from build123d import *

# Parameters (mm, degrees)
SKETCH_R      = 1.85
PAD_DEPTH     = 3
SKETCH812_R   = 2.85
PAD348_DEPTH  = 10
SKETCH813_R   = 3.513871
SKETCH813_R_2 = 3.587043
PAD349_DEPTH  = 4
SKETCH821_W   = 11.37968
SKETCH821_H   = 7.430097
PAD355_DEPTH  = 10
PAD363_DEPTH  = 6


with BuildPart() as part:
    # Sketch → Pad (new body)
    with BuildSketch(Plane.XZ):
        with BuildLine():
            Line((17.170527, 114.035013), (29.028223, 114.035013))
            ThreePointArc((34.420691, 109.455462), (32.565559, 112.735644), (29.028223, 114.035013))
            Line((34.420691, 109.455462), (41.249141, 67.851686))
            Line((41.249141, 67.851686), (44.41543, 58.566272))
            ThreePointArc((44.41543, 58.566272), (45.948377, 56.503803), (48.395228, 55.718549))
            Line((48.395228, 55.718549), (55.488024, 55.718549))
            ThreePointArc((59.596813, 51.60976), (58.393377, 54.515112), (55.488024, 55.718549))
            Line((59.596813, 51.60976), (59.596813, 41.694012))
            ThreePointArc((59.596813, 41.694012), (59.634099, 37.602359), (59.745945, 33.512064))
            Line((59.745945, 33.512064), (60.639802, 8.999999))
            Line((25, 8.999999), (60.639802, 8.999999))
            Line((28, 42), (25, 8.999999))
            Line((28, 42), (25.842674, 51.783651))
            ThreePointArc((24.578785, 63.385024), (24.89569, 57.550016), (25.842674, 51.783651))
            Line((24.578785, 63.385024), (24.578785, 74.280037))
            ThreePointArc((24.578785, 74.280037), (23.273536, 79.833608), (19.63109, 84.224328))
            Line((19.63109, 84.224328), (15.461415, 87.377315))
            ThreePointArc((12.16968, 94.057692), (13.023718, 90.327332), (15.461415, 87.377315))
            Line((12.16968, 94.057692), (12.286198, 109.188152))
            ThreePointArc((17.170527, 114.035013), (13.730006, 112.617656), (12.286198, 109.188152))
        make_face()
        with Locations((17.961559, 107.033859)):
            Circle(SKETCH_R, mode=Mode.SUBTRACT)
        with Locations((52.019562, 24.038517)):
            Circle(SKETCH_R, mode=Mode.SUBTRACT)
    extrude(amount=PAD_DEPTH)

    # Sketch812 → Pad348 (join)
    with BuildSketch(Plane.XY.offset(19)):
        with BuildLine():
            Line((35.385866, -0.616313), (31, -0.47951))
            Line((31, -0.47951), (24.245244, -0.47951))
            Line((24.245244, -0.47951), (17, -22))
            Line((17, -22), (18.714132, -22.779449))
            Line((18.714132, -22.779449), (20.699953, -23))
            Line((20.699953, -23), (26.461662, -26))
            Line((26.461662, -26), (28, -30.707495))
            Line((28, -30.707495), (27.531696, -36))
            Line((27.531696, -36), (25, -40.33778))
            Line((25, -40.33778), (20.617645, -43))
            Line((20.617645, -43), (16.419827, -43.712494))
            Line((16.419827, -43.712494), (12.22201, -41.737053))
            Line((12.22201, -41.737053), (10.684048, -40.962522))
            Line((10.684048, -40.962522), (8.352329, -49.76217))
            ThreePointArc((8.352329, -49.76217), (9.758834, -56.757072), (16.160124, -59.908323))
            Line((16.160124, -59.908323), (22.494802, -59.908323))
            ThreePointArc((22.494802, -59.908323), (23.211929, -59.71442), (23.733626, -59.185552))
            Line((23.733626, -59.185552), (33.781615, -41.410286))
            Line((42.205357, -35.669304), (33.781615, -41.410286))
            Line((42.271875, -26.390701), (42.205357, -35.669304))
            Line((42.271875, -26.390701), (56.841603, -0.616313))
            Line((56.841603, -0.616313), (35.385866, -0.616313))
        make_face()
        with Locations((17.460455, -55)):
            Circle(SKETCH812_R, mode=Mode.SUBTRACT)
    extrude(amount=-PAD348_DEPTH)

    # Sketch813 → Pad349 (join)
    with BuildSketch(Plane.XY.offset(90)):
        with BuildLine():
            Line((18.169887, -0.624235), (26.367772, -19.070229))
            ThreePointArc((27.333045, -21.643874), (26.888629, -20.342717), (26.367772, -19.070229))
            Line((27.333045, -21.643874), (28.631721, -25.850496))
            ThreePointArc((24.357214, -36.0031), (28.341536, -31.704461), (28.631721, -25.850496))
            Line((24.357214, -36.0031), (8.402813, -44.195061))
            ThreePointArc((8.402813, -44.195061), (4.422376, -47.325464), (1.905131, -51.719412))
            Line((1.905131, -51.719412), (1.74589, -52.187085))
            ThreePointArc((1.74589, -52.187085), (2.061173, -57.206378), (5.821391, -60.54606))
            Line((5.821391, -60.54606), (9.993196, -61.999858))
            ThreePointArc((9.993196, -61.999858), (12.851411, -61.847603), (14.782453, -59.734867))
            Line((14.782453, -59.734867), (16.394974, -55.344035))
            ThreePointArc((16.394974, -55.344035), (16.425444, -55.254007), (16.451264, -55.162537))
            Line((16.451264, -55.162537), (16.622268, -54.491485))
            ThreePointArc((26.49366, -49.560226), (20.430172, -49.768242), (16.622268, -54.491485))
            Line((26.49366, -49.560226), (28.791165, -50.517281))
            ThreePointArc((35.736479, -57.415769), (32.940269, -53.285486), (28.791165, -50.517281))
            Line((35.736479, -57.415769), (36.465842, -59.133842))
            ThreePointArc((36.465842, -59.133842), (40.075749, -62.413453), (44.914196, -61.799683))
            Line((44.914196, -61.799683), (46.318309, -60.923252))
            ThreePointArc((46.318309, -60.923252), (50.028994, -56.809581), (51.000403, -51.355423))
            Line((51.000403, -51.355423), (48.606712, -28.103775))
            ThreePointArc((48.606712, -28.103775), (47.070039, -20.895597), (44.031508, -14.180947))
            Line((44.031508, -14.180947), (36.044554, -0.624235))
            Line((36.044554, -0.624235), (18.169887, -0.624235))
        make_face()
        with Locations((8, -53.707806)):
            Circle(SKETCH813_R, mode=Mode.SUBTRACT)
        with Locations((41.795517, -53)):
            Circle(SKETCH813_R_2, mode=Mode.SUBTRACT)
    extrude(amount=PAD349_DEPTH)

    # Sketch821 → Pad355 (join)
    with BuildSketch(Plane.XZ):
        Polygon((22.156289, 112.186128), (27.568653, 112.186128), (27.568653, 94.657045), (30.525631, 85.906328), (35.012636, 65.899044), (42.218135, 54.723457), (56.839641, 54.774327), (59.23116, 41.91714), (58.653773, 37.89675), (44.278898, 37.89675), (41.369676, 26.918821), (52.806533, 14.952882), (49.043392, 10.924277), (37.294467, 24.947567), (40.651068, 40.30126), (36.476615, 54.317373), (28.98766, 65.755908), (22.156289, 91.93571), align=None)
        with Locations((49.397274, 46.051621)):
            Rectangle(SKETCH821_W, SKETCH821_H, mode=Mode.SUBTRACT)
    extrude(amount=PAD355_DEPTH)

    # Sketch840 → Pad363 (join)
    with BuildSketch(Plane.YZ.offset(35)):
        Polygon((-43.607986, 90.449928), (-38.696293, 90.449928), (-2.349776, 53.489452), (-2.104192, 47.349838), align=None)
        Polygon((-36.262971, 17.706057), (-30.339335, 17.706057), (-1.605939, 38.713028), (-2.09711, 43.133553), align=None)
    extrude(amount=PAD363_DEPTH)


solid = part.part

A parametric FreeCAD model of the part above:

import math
import FreeCAD as App
import Part
import Sketcher

V = App.Vector
Q = App.Units.Quantity


def add_polygon(sketch, points):
    """Adds a closed chain of lines whose ends are joined by coincident constraints."""
    first, n = sketch.GeometryCount, len(points)
    for a, b in zip(points, points[1:] + points[:1]):
        sketch.addGeometry(Part.LineSegment(App.Vector(*a, 0), App.Vector(*b, 0)), False)
    for i in range(n):
        sketch.addConstraint(Sketcher.Constraint("Coincident", first + i, 2, first + (i + 1) % n, 1))

doc = App.newDocument("Part")
body = doc.addObject("PartDesign::Body", "Body")

sketch1 = body.newObject("Sketcher::SketchObject", "Sketch")
sketch1.AttachmentSupport = (doc.getObject("XZ_Plane"), [""])
sketch1.MapMode = "FlatFace"
sketch1.addGeometry(Part.LineSegment(V(29.028223, 114.035013, 0), V(17.170527, 114.035013, 0)), False)
sketch1.addGeometry(Part.ArcOfCircle(Part.Circle(V(17.170527, 109.150539, 0), V(0, 0, 1), 4.884474), math.radians(90.000002), math.radians(179.558788)), False)
sketch1.addGeometry(Part.LineSegment(V(12.286198, 109.188152, 0), V(12.16968, 94.057692, 0)), False)
sketch1.addGeometry(Part.ArcOfCircle(Part.Circle(V(20.464621, 93.993814, 0), V(0, 0, 1), 8.295187), math.radians(179.558782), math.radians(232.904477)), False)
sketch1.addGeometry(Part.LineSegment(V(15.461415, 87.377315, 0), V(19.63109, 84.224328, 0)), False)
sketch1.addGeometry(Part.ArcOfCircle(Part.Circle(V(12.111508, 74.280039, 0), V(0, 0, 1), 12.467277), math.radians(-0.00001), math.radians(52.90449)), False)
sketch1.addGeometry(Part.LineSegment(V(24.578785, 74.280037, 0), V(24.578785, 63.385024, 0)), False)
sketch1.addGeometry(Part.ArcOfCircle(Part.Circle(V(78.455977, 63.385037, 0), V(0, 0, 1), 53.877192), math.radians(-179.999986), math.radians(-167.5651)), False)
sketch1.addGeometry(Part.LineSegment(V(25.842674, 51.783651, 0), V(28, 42, 0)), False)
sketch1.addGeometry(Part.LineSegment(V(28, 42, 0), V(25, 8.999999, 0)), False)
sketch1.addGeometry(Part.LineSegment(V(25, 8.999999, 0), V(60.639802, 8.999999, 0)), False)
sketch1.addGeometry(Part.LineSegment(V(60.639802, 8.999999, 0), V(59.745945, 33.512064, 0)), False)
sketch1.addGeometry(Part.ArcOfCircle(Part.Circle(V(284.117229, 41.694002, 0), V(0, 0, 1), 224.520416), math.radians(179.999998), math.radians(182.088426)), False)
sketch1.addGeometry(Part.LineSegment(V(59.596813, 41.694012, 0), V(59.596813, 51.60976, 0)), False)
sketch1.addGeometry(Part.ArcOfCircle(Part.Circle(V(55.488024, 51.60976, 0), V(0, 0, 1), 4.108789), math.radians(0.000003), math.radians(89.999997)), False)
sketch1.addGeometry(Part.LineSegment(V(55.488024, 55.718549, 0), V(48.395228, 55.718549, 0)), False)
sketch1.addGeometry(Part.ArcOfCircle(Part.Circle(V(48.395227, 59.923367, 0), V(0, 0, 1), 4.204818), math.radians(-161.170832), math.radians(-89.999989)), False)
sketch1.addGeometry(Part.LineSegment(V(44.41543, 58.566272, 0), V(41.249141, 67.851686, 0)), False)
sketch1.addGeometry(Part.LineSegment(V(41.249141, 67.851686, 0), V(34.420691, 109.455462, 0)), False)
sketch1.addGeometry(Part.ArcOfCircle(Part.Circle(V(29.028221, 108.570393, 0), V(0, 0, 1), 5.46462), math.radians(9.320886), math.radians(89.999984)), False)
sketch1.addGeometry(Part.Circle(V(52.019562, 24.038517, 0), V(0, 0, 1), 1.85), False)
sketch1.addGeometry(Part.Circle(V(17.961559, 107.033859, 0), V(0, 0, 1), 1.85), False)
sketch1.addConstraint(Sketcher.Constraint("Coincident", 0, 2, 1, 1))
sketch1.addConstraint(Sketcher.Constraint("Coincident", 1, 2, 2, 1))
sketch1.addConstraint(Sketcher.Constraint("Coincident", 2, 2, 3, 1))
sketch1.addConstraint(Sketcher.Constraint("Coincident", 3, 2, 4, 1))
sketch1.addConstraint(Sketcher.Constraint("Coincident", 4, 2, 5, 2))
sketch1.addConstraint(Sketcher.Constraint("Coincident", 5, 1, 6, 1))
sketch1.addConstraint(Sketcher.Constraint("Coincident", 6, 2, 7, 1))
sketch1.addConstraint(Sketcher.Constraint("Coincident", 7, 2, 8, 1))
sketch1.addConstraint(Sketcher.Constraint("Coincident", 8, 2, 9, 1))
sketch1.addConstraint(Sketcher.Constraint("Coincident", 9, 2, 10, 1))
sketch1.addConstraint(Sketcher.Constraint("Coincident", 10, 2, 11, 1))
sketch1.addConstraint(Sketcher.Constraint("Coincident", 11, 2, 12, 2))
sketch1.addConstraint(Sketcher.Constraint("Coincident", 12, 1, 13, 1))
sketch1.addConstraint(Sketcher.Constraint("Coincident", 13, 2, 14, 1))
sketch1.addConstraint(Sketcher.Constraint("Coincident", 14, 2, 15, 1))
sketch1.addConstraint(Sketcher.Constraint("Coincident", 15, 2, 16, 2))
sketch1.addConstraint(Sketcher.Constraint("Coincident", 16, 1, 17, 1))
sketch1.addConstraint(Sketcher.Constraint("Coincident", 17, 2, 18, 1))
sketch1.addConstraint(Sketcher.Constraint("Coincident", 18, 2, 19, 1))
sketch1.addConstraint(Sketcher.Constraint("Coincident", 19, 2, 0, 1))
sketch1.addConstraint(Sketcher.Constraint("Horizontal", 0))
sketch1.addConstraint(Sketcher.Constraint("Vertical", 6))
sketch1.addConstraint(Sketcher.Constraint("Horizontal", 10))
sketch1.addConstraint(Sketcher.Constraint("Vertical", 13))
sketch1.addConstraint(Sketcher.Constraint("Horizontal", 15))
sketch1.addConstraint(Sketcher.Constraint("Diameter", 20, Q("3.7 mm")))
sketch1.addConstraint(Sketcher.Constraint("Diameter", 21, Q("3.7 mm")))
sketch1.addConstraint(Sketcher.Constraint("DistanceX", -1, 1, 8, 2, Q("28 mm")))
sketch1.addConstraint(Sketcher.Constraint("DistanceY", -1, 1, 8, 2, Q("42 mm")))
sketch1.addConstraint(Sketcher.Constraint("DistanceX", -1, 1, 9, 2, Q("25 mm")))
sketch1.addConstraint(Sketcher.Constraint("DistanceY", -1, 1, 9, 2, Q("8.999999 mm")))
sketch1.addConstraint(Sketcher.Constraint("Radius", 14, Q("4.108789 mm")))
sketch1.addConstraint(Sketcher.Constraint("Radius", 19, Q("5.46462 mm")))
sketch1.addConstraint(Sketcher.Constraint("Radius", 1, Q("4.884474 mm")))
sketch1.addConstraint(Sketcher.Constraint("Radius", 3, Q("8.295187 mm")))
sketch1.addConstraint(Sketcher.Constraint("Radius", 5, Q("12.467277 mm")))
sketch1.addConstraint(Sketcher.Constraint("Radius", 7, Q("53.877192 mm")))
sketch1.addConstraint(Sketcher.Constraint("Radius", 12, Q("224.520416 mm")))
sketch1.addConstraint(Sketcher.Constraint("Radius", 16, Q("4.204818 mm")))
sketch1.addConstraint(Sketcher.Constraint("DistanceY", 7, 3, 5, 3, Q("10.895002 mm")))
sketch1.addConstraint(Sketcher.Constraint("DistanceY", 13, 1, 13, 2, Q("9.915748 mm")))
sketch1.addConstraint(Sketcher.Constraint("DistanceY", 5, 3, 1, 3, Q("34.8705 mm")))
sketch1.addConstraint(Sketcher.Constraint("DistanceX", 1, 3, 12, 3, Q("266.946702 mm")))
sketch1.addConstraint(Sketcher.Constraint("DistanceX", 1, 3, 16, 3, Q("31.2247 mm")))
sketch1.addConstraint(Sketcher.Constraint("DistanceX", 3, 3, 19, 3, Q("8.5636 mm")))
sketch1.addConstraint(Sketcher.Constraint("DistanceY", 3, 3, 0, 2, Q("20.041199 mm")))
sketch1.addConstraint(Sketcher.Constraint("DistanceY", 3, 2, 3, 3, Q("6.616499 mm")))
sketch1.addConstraint(Sketcher.Constraint("Distance", 2, Q("15.130909 mm")))
sketch1.addConstraint(Sketcher.Constraint("Distance", 18, Q("42.160431 mm")))
sketch1.addConstraint(Sketcher.Constraint("DistanceX", 0, 2, 0, 1, Q("11.857696 mm")))
sketch1.addConstraint(Sketcher.Constraint("DistanceX", 10, 1, 10, 2, Q("35.639802 mm")))
sketch1.addConstraint(Sketcher.Constraint("DistanceX", 15, 2, 15, 1, Q("7.092796 mm")))
sketch1.addConstraint(Sketcher.Constraint("DistanceY", 6, 2, 6, 1, Q("10.895013 mm")))
sketch1.addConstraint(Sketcher.Constraint("DistanceY", -1, 1, 1, 3, Q("109.150539 mm")))
sketch1.addConstraint(Sketcher.Constraint("DistanceX", -1, 1, 3, 3, Q("20.464621 mm")))
sketch1.addConstraint(Sketcher.Constraint("DistanceX", -1, 1, 5, 3, Q("12.111508 mm")))
sketch1.addConstraint(Sketcher.Constraint("DistanceX", -1, 1, 12, 3, Q("284.117229 mm")))
sketch1.addConstraint(Sketcher.Constraint("DistanceY", -1, 1, 14, 3, Q("51.60976 mm")))
sketch1.addConstraint(Sketcher.Constraint("DistanceX", -1, 1, 21, 3, Q("17.961559 mm")))
sketch1.addConstraint(Sketcher.Constraint("DistanceY", -1, 1, 21, 3, Q("107.033859 mm")))
sketch1.addConstraint(Sketcher.Constraint("DistanceX", -1, 1, 2, 2, Q("12.16968 mm")))
sketch1.addConstraint(Sketcher.Constraint("DistanceX", -1, 1, 4, 2, Q("19.63109 mm")))
sketch1.addConstraint(Sketcher.Constraint("DistanceY", -1, 1, 7, 2, Q("51.783651 mm")))
sketch1.addConstraint(Sketcher.Constraint("DistanceY", -1, 1, 13, 2, Q("51.60976 mm")))
sketch1.addConstraint(Sketcher.Constraint("DistanceX", -1, 1, 15, 2, Q("48.395228 mm")))
sketch1.addConstraint(Sketcher.Constraint("DistanceX", -1, 1, 16, 1, Q("44.41543 mm")))
sketch1.addConstraint(Sketcher.Constraint("DistanceX", -1, 1, 17, 2, Q("41.249141 mm")))
sketch1.addConstraint(Sketcher.Constraint("DistanceX", -1, 1, 18, 2, Q("34.420691 mm")))
sketch1.addConstraint(Sketcher.Constraint("DistanceY", 12, 3, 3, 3, Q("52.299811 mm")))
sketch1.addConstraint(Sketcher.Constraint("DistanceX", 20, 3, 14, 3, Q("3.468462 mm")))
sketch1.addConstraint(Sketcher.Constraint("DistanceY", 20, 3, 16, 3, Q("35.88485 mm")))
sketch1.addConstraint(Sketcher.Constraint("DistanceX", 5, 3, 0, 2, Q("5.059019 mm")))
sketch1.addConstraint(Sketcher.Constraint("DistanceY", 5, 1, 4, 2, Q("9.944291 mm")))
sketch1.addConstraint(Sketcher.Constraint("DistanceX", 14, 3, 11, 2, Q("4.257921 mm")))
pad1 = body.newObject("PartDesign::Pad", "Pad")
pad1.Profile = sketch1
pad1.Length = 3

sketch2 = body.newObject("Sketcher::SketchObject", "Sketch001")
sketch2.AttachmentSupport = (doc.getObject("XY_Plane"), [""])
sketch2.MapMode = "FlatFace"
sketch2.AttachmentOffset = App.Placement(V(0, 0, 19), App.Rotation())
sketch2.addGeometry(Part.LineSegment(V(35.385866, -0.616313, 0), V(31, -0.47951, 0)), False)
sketch2.addGeometry(Part.LineSegment(V(31, -0.47951, 0), V(24.245244, -0.47951, 0)), False)
sketch2.addGeometry(Part.LineSegment(V(24.245244, -0.47951, 0), V(17, -22, 0)), False)
sketch2.addGeometry(Part.LineSegment(V(17, -22, 0), V(18.714132, -22.779449, 0)), False)
sketch2.addGeometry(Part.LineSegment(V(18.714132, -22.779449, 0), V(20.699953, -23, 0)), False)
sketch2.addGeometry(Part.LineSegment(V(20.699953, -23, 0), V(26.461662, -26, 0)), False)
sketch2.addGeometry(Part.LineSegment(V(26.461662, -26, 0), V(28, -30.707495, 0)), False)
sketch2.addGeometry(Part.LineSegment(V(28, -30.707495, 0), V(27.531696, -36, 0)), False)
sketch2.addGeometry(Part.LineSegment(V(27.531696, -36, 0), V(25, -40.33778, 0)), False)
sketch2.addGeometry(Part.LineSegment(V(25, -40.33778, 0), V(20.617645, -43, 0)), False)
sketch2.addGeometry(Part.LineSegment(V(20.617645, -43, 0), V(16.419827, -43.712494, 0)), False)
sketch2.addGeometry(Part.LineSegment(V(16.419827, -43.712494, 0), V(12.22201, -41.737053, 0)), False)
sketch2.addGeometry(Part.LineSegment(V(12.22201, -41.737053, 0), V(10.684048, -40.962522, 0)), False)
sketch2.addGeometry(Part.LineSegment(V(10.684048, -40.962522, 0), V(8.352329, -49.76217, 0)), False)
sketch2.addGeometry(Part.ArcOfCircle(Part.Circle(V(16.160125, -51.83107, 0), V(0, 0, 1), 8.077253), math.radians(165.158911), math.radians(269.999996)), False)
sketch2.addGeometry(Part.LineSegment(V(16.160124, -59.908323, 0), V(22.494802, -59.908323, 0)), False)
sketch2.addGeometry(Part.ArcOfCircle(Part.Circle(V(22.494803, -58.485272, 0), V(0, 0, 1), 1.423051), math.radians(-90.000054), math.radians(-29.478537)), False)
sketch2.addGeometry(Part.LineSegment(V(23.733626, -59.185552, 0), V(33.781615, -41.410286, 0)), False)
sketch2.addGeometry(Part.LineSegment(V(33.781615, -41.410286, 0), V(42.205357, -35.669304, 0)), False)
sketch2.addGeometry(Part.LineSegment(V(42.205357, -35.669304, 0), V(42.271875, -26.390701, 0)), False)
sketch2.addGeometry(Part.LineSegment(V(42.271875, -26.390701, 0), V(56.841603, -0.616313, 0)), False)
sketch2.addGeometry(Part.LineSegment(V(56.841603, -0.616313, 0), V(35.385866, -0.616313, 0)), False)
sketch2.addGeometry(Part.Circle(V(17.460455, -55, 0), V(0, 0, 1), 2.85), False)
sketch2.addConstraint(Sketcher.Constraint("Coincident", 0, 2, 1, 1))
sketch2.addConstraint(Sketcher.Constraint("Coincident", 1, 2, 2, 1))
sketch2.addConstraint(Sketcher.Constraint("Coincident", 2, 2, 3, 1))
sketch2.addConstraint(Sketcher.Constraint("Coincident", 3, 2, 4, 1))
sketch2.addConstraint(Sketcher.Constraint("Coincident", 4, 2, 5, 1))
sketch2.addConstraint(Sketcher.Constraint("Coincident", 5, 2, 6, 1))
sketch2.addConstraint(Sketcher.Constraint("Coincident", 6, 2, 7, 1))
sketch2.addConstraint(Sketcher.Constraint("Coincident", 7, 2, 8, 1))
sketch2.addConstraint(Sketcher.Constraint("Coincident", 8, 2, 9, 1))
sketch2.addConstraint(Sketcher.Constraint("Coincident", 9, 2, 10, 1))
sketch2.addConstraint(Sketcher.Constraint("Coincident", 10, 2, 11, 1))
sketch2.addConstraint(Sketcher.Constraint("Coincident", 11, 2, 12, 1))
sketch2.addConstraint(Sketcher.Constraint("Coincident", 12, 2, 13, 1))
sketch2.addConstraint(Sketcher.Constraint("Coincident", 13, 2, 14, 1))
sketch2.addConstraint(Sketcher.Constraint("Coincident", 14, 2, 15, 1))
sketch2.addConstraint(Sketcher.Constraint("Coincident", 15, 2, 16, 1))
sketch2.addConstraint(Sketcher.Constraint("Coincident", 16, 2, 17, 1))
sketch2.addConstraint(Sketcher.Constraint("Coincident", 17, 2, 18, 1))
sketch2.addConstraint(Sketcher.Constraint("Coincident", 18, 2, 19, 1))
sketch2.addConstraint(Sketcher.Constraint("Coincident", 19, 2, 20, 1))
sketch2.addConstraint(Sketcher.Constraint("Coincident", 20, 2, 21, 1))
sketch2.addConstraint(Sketcher.Constraint("Coincident", 21, 2, 0, 1))
sketch2.addConstraint(Sketcher.Constraint("Horizontal", 1))
sketch2.addConstraint(Sketcher.Constraint("Horizontal", 15))
sketch2.addConstraint(Sketcher.Constraint("Horizontal", 21))
sketch2.addConstraint(Sketcher.Constraint("Diameter", 22, Q("5.7 mm")))
sketch2.addConstraint(Sketcher.Constraint("DistanceY", 22, 3, -1, 1, Q("55 mm")))
sketch2.addConstraint(Sketcher.Constraint("DistanceX", -1, 1, 0, 2, Q("31 mm")))
sketch2.addConstraint(Sketcher.Constraint("DistanceX", -1, 1, 2, 2, Q("17 mm")))
sketch2.addConstraint(Sketcher.Constraint("DistanceY", 2, 2, -1, 1, Q("22 mm")))
sketch2.addConstraint(Sketcher.Constraint("DistanceY", 4, 2, -1, 1, Q("23 mm")))
sketch2.addConstraint(Sketcher.Constraint("DistanceY", 5, 2, -1, 1, Q("26 mm")))
sketch2.addConstraint(Sketcher.Constraint("DistanceX", -1, 1, 6, 2, Q("28 mm")))
sketch2.addConstraint(Sketcher.Constraint("DistanceY", 7, 2, -1, 1, Q("36 mm")))
sketch2.addConstraint(Sketcher.Constraint("DistanceX", -1, 1, 8, 2, Q("25 mm")))
sketch2.addConstraint(Sketcher.Constraint("DistanceY", 9, 2, -1, 1, Q("43 mm")))
sketch2.addConstraint(Sketcher.Constraint("Radius", 16, Q("1.423051 mm")))
sketch2.addConstraint(Sketcher.Constraint("Distance", 0, Q("4.387999 mm")))
sketch2.addConstraint(Sketcher.Constraint("Radius", 14, Q("8.077253 mm")))
sketch2.addConstraint(Sketcher.Constraint("Distance", 11, Q("4.6394 mm")))
sketch2.addConstraint(Sketcher.Constraint("DistanceX", 15, 1, 15, 2, Q("6.334678 mm")))
sketch2.addConstraint(Sketcher.Constraint("DistanceX", -1, 1, 15, 2, Q("22.494802 mm")))
sketch2.addConstraint(Sketcher.Constraint("DistanceY", 19, 2, -1, 1, Q("26.390701 mm")))
sketch2.addConstraint(Sketcher.Constraint("DistanceY", 14, 3, 13, 2, Q("2.0689 mm")))
sketch2.addConstraint(Sketcher.Constraint("DistanceX", 13, 2, 10, 2, Q("8.067498 mm")))
sketch2.addConstraint(Sketcher.Constraint("DistanceX", 14, 2, 16, 2, Q("7.573502 mm")))
sketch2.addConstraint(Sketcher.Constraint("DistanceX", 14, 3, 16, 2, Q("7.573501 mm")))
sketch2.addConstraint(Sketcher.Constraint("Distance", 2, Q("22.707379 mm")))
sketch2.addConstraint(Sketcher.Constraint("Distance", 4, Q("1.998031 mm")))
sketch2.addConstraint(Sketcher.Constraint("Distance", 8, Q("5.022531 mm")))
sketch2.addConstraint(Sketcher.Constraint("Distance", 17, Q("20.418672 mm")))
sketch2.addConstraint(Sketcher.Constraint("Distance", 19, Q("9.278841 mm")))
sketch2.addConstraint(Sketcher.Constraint("DistanceX", 1, 2, 1, 1, Q("6.754756 mm")))
sketch2.addConstraint(Sketcher.Constraint("DistanceX", 21, 2, 21, 1, Q("21.455737 mm")))
sketch2.addConstraint(Sketcher.Constraint("DistanceY", 14, 3, -1, 1, Q("51.83107 mm")))
sketch2.addConstraint(Sketcher.Constraint("DistanceX", -1, 1, 3, 2, Q("18.714132 mm")))
sketch2.addConstraint(Sketcher.Constraint("DistanceY", 3, 2, -1, 1, Q("22.779449 mm")))
sketch2.addConstraint(Sketcher.Constraint("DistanceY", 8, 2, -1, 1, Q("40.33778 mm")))
sketch2.addConstraint(Sketcher.Constraint("DistanceX", -1, 1, 11, 2, Q("12.22201 mm")))
sketch2.addConstraint(Sketcher.Constraint("DistanceX", -1, 1, 12, 2, Q("10.684048 mm")))
sketch2.addConstraint(Sketcher.Constraint("DistanceY", 16, 2, -1, 1, Q("59.185552 mm")))
sketch2.addConstraint(Sketcher.Constraint("DistanceX", 14, 3, 22, 3, Q("1.30033 mm")))
sketch2.addConstraint(Sketcher.Constraint("DistanceX", 4, 2, 5, 2, Q("5.761709 mm")))
sketch2.addConstraint(Sketcher.Constraint("DistanceX", 9, 2, 7, 2, Q("6.914051 mm")))
sketch2.addConstraint(Sketcher.Constraint("DistanceY", 11, 2, 12, 2, Q("0.774531 mm")))
sketch2.addConstraint(Sketcher.Constraint("DistanceY", 9, 2, 12, 2, Q("2.037478 mm")))
sketch2.addConstraint(Sketcher.Constraint("DistanceX", 7, 2, 17, 2, Q("6.249919 mm")))
sketch2.addConstraint(Sketcher.Constraint("DistanceY", 17, 2, 6, 2, Q("10.702791 mm")))
sketch2.addConstraint(Sketcher.Constraint("DistanceX", 17, 2, 18, 2, Q("8.423742 mm")))
sketch2.addConstraint(Sketcher.Constraint("DistanceY", 18, 2, 6, 2, Q("4.961809 mm")))
sketch2.addConstraint(Sketcher.Constraint("DistanceX", 1, 2, 20, 2, Q("32.596359 mm")))
pad2 = body.newObject("PartDesign::Pad", "Pad001")
pad2.Profile = sketch2
pad2.Length = 10
pad2.Reversed = True

sketch3 = body.newObject("Sketcher::SketchObject", "Sketch002")
sketch3.AttachmentSupport = (doc.getObject("XY_Plane"), [""])
sketch3.MapMode = "FlatFace"
sketch3.AttachmentOffset = App.Placement(V(0, 0, 90), App.Rotation())
sketch3.addGeometry(Part.LineSegment(V(18.169887, -0.624235, 0), V(26.367772, -19.070229, 0)), False)
sketch3.addGeometry(Part.ArcOfCircle(Part.Circle(V(5.206807, -28.474715, 0), V(0, 0, 1), 23.156658), math.radians(17.156572), math.radians(23.961613)), False)
sketch3.addGeometry(Part.LineSegment(V(27.333045, -21.643874, 0), V(28.631721, -25.850496, 0)), False)
sketch3.addGeometry(Part.ArcOfCircle(Part.Circle(V(20.442396, -28.37872, 0), V(0, 0, 1), 8.570704), math.radians(-62.821291), math.radians(17.156606)), False)
sketch3.addGeometry(Part.LineSegment(V(24.357214, -36.0031, 0), V(8.402813, -44.195061, 0)), False)
sketch3.addGeometry(Part.ArcOfCircle(Part.Circle(V(14.461521, -55.994806, 0), V(0, 0, 1), 13.264311), math.radians(117.178728), math.radians(161.196523)), False)
sketch3.addGeometry(Part.LineSegment(V(1.905131, -51.719412, 0), V(1.74589, -52.187085, 0)), False)
sketch3.addGeometry(Part.ArcOfCircle(Part.Circle(V(7.993074, -54.314222, 0), V(0, 0, 1), 6.599395), math.radians(161.196534), math.radians(250.787479)), False)
sketch3.addGeometry(Part.LineSegment(V(5.821391, -60.54606, 0), V(9.993196, -61.999858, 0)), False)
sketch3.addGeometry(Part.ArcOfCircle(Part.Circle(V(11.236332, -58.432565, 0), V(0, 0, 1), 3.777693), math.radians(-109.2125), math.radians(-20.165606)), False)
sketch3.addGeometry(Part.LineSegment(V(14.782453, -59.734867, 0), V(16.394974, -55.344035, 0)), False)
sketch3.addGeometry(Part.ArcOfCircle(Part.Circle(V(14.653215, -54.704366, 0), V(0, 0, 1), 1.855506), math.radians(-20.165994), math.radians(-14.295635)), False)
sketch3.addGeometry(Part.LineSegment(V(16.451264, -55.162537, 0), V(16.622268, -54.491485, 0)), False)
sketch3.addGeometry(Part.ArcOfCircle(Part.Circle(V(23.689303, -56.292369, 0), V(0, 0, 1), 7.292885), math.radians(67.385229), math.radians(165.70366)), False)
sketch3.addGeometry(Part.LineSegment(V(26.49366, -49.560226, 0), V(28.791165, -50.517281, 0)), False)
sketch3.addGeometry(Part.ArcOfCircle(Part.Circle(V(23.808097, -62.479647, 0), V(0, 0, 1), 12.958749), math.radians(23.00236), math.radians(67.385239)), False)
sketch3.addGeometry(Part.LineSegment(V(35.736479, -57.415769, 0), V(36.465842, -59.133842, 0)), False)
sketch3.addGeometry(Part.ArcOfCircle(Part.Circle(V(41.829054, -56.857029, 0), V(0, 0, 1), 5.826485), math.radians(-156.99761), math.radians(-58.028114)), False)
sketch3.addGeometry(Part.LineSegment(V(44.914196, -61.799683, 0), V(46.318309, -60.923252, 0)), False)
sketch3.addGeometry(Part.ArcOfCircle(Part.Circle(V(40.989472, -52.386018, 0), V(0, 0, 1), 10.063839), math.radians(-58.028094), math.radians(5.877722)), False)
sketch3.addGeometry(Part.LineSegment(V(51.000403, -51.355423, 0), V(48.606712, -28.103775, 0)), False)
sketch3.addGeometry(Part.ArcOfCircle(Part.Circle(V(14.427019, -31.622475, 0), V(0, 0, 1), 34.360335), math.radians(5.877728), math.radians(30.504528)), False)
sketch3.addGeometry(Part.LineSegment(V(44.031508, -14.180947, 0), V(36.044554, -0.624235, 0)), False)
sketch3.addGeometry(Part.LineSegment(V(36.044554, -0.624235, 0), V(18.169887, -0.624235, 0)), False)
sketch3.addGeometry(Part.Circle(V(8, -53.707806, 0), V(0, 0, 1), 3.513871), False)
sketch3.addGeometry(Part.Circle(V(41.795517, -53, 0), V(0, 0, 1), 3.587043), False)
sketch3.addConstraint(Sketcher.Constraint("Coincident", 0, 2, 1, 2))
sketch3.addConstraint(Sketcher.Constraint("Coincident", 1, 1, 2, 1))
sketch3.addConstraint(Sketcher.Constraint("Coincident", 2, 2, 3, 2))
sketch3.addConstraint(Sketcher.Constraint("Coincident", 3, 1, 4, 1))
sketch3.addConstraint(Sketcher.Constraint("Coincident", 4, 2, 5, 1))
sketch3.addConstraint(Sketcher.Constraint("Coincident", 5, 2, 6, 1))
sketch3.addConstraint(Sketcher.Constraint("Coincident", 6, 2, 7, 1))
sketch3.addConstraint(Sketcher.Constraint("Coincident", 7, 2, 8, 1))
sketch3.addConstraint(Sketcher.Constraint("Coincident", 8, 2, 9, 1))
sketch3.addConstraint(Sketcher.Constraint("Coincident", 9, 2, 10, 1))
sketch3.addConstraint(Sketcher.Constraint("Coincident", 10, 2, 11, 1))
sketch3.addConstraint(Sketcher.Constraint("Coincident", 11, 2, 12, 1))
sketch3.addConstraint(Sketcher.Constraint("Coincident", 12, 2, 13, 2))
sketch3.addConstraint(Sketcher.Constraint("Coincident", 13, 1, 14, 1))
sketch3.addConstraint(Sketcher.Constraint("Coincident", 14, 2, 15, 2))
sketch3.addConstraint(Sketcher.Constraint("Coincident", 15, 1, 16, 1))
sketch3.addConstraint(Sketcher.Constraint("Coincident", 16, 2, 17, 1))
sketch3.addConstraint(Sketcher.Constraint("Coincident", 17, 2, 18, 1))
sketch3.addConstraint(Sketcher.Constraint("Coincident", 18, 2, 19, 1))
sketch3.addConstraint(Sketcher.Constraint("Coincident", 19, 2, 20, 1))
sketch3.addConstraint(Sketcher.Constraint("Coincident", 20, 2, 21, 1))
sketch3.addConstraint(Sketcher.Constraint("Coincident", 21, 2, 22, 1))
sketch3.addConstraint(Sketcher.Constraint("Coincident", 22, 2, 23, 1))
sketch3.addConstraint(Sketcher.Constraint("Coincident", 23, 2, 0, 1))
sketch3.addConstraint(Sketcher.Constraint("Horizontal", 23))
sketch3.addConstraint(Sketcher.Constraint("DistanceX", -1, 1, 24, 3, Q("8 mm")))
sketch3.addConstraint(Sketcher.Constraint("DistanceY", 25, 3, -1, 1, Q("53 mm")))
sketch3.addConstraint(Sketcher.Constraint("Radius", 5, Q("13.264311 mm")))
sketch3.addConstraint(Sketcher.Constraint("Radius", 15, Q("12.958749 mm")))
sketch3.addConstraint(Sketcher.Constraint("Radius", 19, Q("10.063839 mm")))
sketch3.addConstraint(Sketcher.Constraint("Diameter", 24, Q("7.027742 mm")))
sketch3.addConstraint(Sketcher.Constraint("Diameter", 25, Q("7.174086 mm")))
sketch3.addConstraint(Sketcher.Constraint("Radius", 1, Q("23.156658 mm")))
sketch3.addConstraint(Sketcher.Constraint("Radius", 3, Q("8.570704 mm")))
sketch3.addConstraint(Sketcher.Constraint("Radius", 7, Q("6.599395 mm")))
sketch3.addConstraint(Sketcher.Constraint("Radius", 9, Q("3.777693 mm")))
sketch3.addConstraint(Sketcher.Constraint("Radius", 11, Q("1.855506 mm")))
sketch3.addConstraint(Sketcher.Constraint("Radius", 13, Q("7.292885 mm")))
sketch3.addConstraint(Sketcher.Constraint("Radius", 17, Q("5.826485 mm")))
sketch3.addConstraint(Sketcher.Constraint("Radius", 21, Q("34.360335 mm")))
sketch3.addConstraint(Sketcher.Constraint("DistanceY", 5, 3, 24, 3, Q("2.287 mm")))
sketch3.addConstraint(Sketcher.Constraint("DistanceY", 3, 1, -1, 1, Q("36.0031 mm")))
sketch3.addConstraint(Sketcher.Constraint("DistanceY", 7, 3, 3, 3, Q("25.935501 mm")))
sketch3.addConstraint(Sketcher.Constraint("DistanceY", 9, 3, 11, 3, Q("3.728199 mm")))
sketch3.addConstraint(Sketcher.Constraint("DistanceX", 0, 2, 19, 3, Q("14.6217 mm")))
sketch3.addConstraint(Sketcher.Constraint("DistanceY", 21, 3, 1, 1, Q("9.978601 mm")))
sketch3.addConstraint(Sketcher.Constraint("DistanceX", 21, 3, 2, 2, Q("14.204702 mm")))
sketch3.addConstraint(Sketcher.Constraint("DistanceX", 4, 2, 11, 3, Q("6.250402 mm")))
sketch3.addConstraint(Sketcher.Constraint("DistanceX", 5, 2, 9, 3, Q("9.331201 mm")))
sketch3.addConstraint(Sketcher.Constraint("DistanceX", 6, 2, 7, 2, Q("4.075501 mm")))
sketch3.addConstraint(Sketcher.Constraint("DistanceY", 8, 2, 7, 2, Q("1.453798 mm")))
sketch3.addConstraint(Sketcher.Constraint("DistanceY", 9, 2, 11, 3, Q("5.030501 mm")))
sketch3.addConstraint(Sketcher.Constraint("DistanceY", 15, 1, 13, 3, Q("1.1234 mm")))
sketch3.addConstraint(Sketcher.Constraint("DistanceY", 20, 2, 1, 1, Q("6.459901 mm")))
sketch3.addConstraint(Sketcher.Constraint("Distance", 0, Q("20.185639 mm")))
sketch3.addConstraint(Sketcher.Constraint("Distance", 6, Q("0.49404 mm")))
sketch3.addConstraint(Sketcher.Constraint("Distance", 8, Q("4.41786 mm")))
sketch3.addConstraint(Sketcher.Constraint("Distance", 14, Q("2.488872 mm")))
sketch3.addConstraint(Sketcher.Constraint("Distance", 16, Q("1.866479 mm")))
sketch3.addConstraint(Sketcher.Constraint("DistanceX", 23, 2, 23, 1, Q("17.874667 mm")))
sketch3.addConstraint(Sketcher.Constraint("DistanceY", 3, 3, -1, 1, Q("28.37872 mm")))
sketch3.addConstraint(Sketcher.Constraint("DistanceX", -1, 1, 5, 3, Q("14.461521 mm")))
sketch3.addConstraint(Sketcher.Constraint("DistanceX", -1, 1, 9, 3, Q("11.236332 mm")))
sketch3.addConstraint(Sketcher.Constraint("DistanceY", 13, 3, -1, 1, Q("56.292369 mm")))
sketch3.addConstraint(Sketcher.Constraint("DistanceY", 17, 3, -1, 1, Q("56.857029 mm")))
sketch3.addConstraint(Sketcher.Constraint("DistanceY", 19, 3, -1, 1, Q("52.386018 mm")))
sketch3.addConstraint(Sketcher.Constraint("DistanceX", -1, 1, 21, 3, Q("14.427019 mm")))
sketch3.addConstraint(Sketcher.Constraint("DistanceX", -1, 1, 0, 2, Q("26.367772 mm")))
sketch3.addConstraint(Sketcher.Constraint("DistanceY", 0, 2, -1, 1, Q("19.070229 mm")))
sketch3.addConstraint(Sketcher.Constraint("DistanceY", 4, 2, -1, 1, Q("44.195061 mm")))
sketch3.addConstraint(Sketcher.Constraint("DistanceX", -1, 1, 6, 2, Q("1.74589 mm")))
sketch3.addConstraint(Sketcher.Constraint("DistanceY", 7, 2, -1, 1, Q("60.54606 mm")))
sketch3.addConstraint(Sketcher.Constraint("DistanceX", -1, 1, 13, 1, Q("26.49366 mm")))
sketch3.addConstraint(Sketcher.Constraint("DistanceY", 14, 2, -1, 1, Q("50.517281 mm")))
sketch3.addConstraint(Sketcher.Constraint("DistanceX", -1, 1, 15, 1, Q("35.736479 mm")))
sketch3.addConstraint(Sketcher.Constraint("DistanceX", -1, 1, 18, 2, Q("46.318309 mm")))
sketch3.addConstraint(Sketcher.Constraint("DistanceX", -1, 1, 21, 2, Q("44.031508 mm")))
sketch3.addConstraint(Sketcher.Constraint("DistanceX", 1, 3, 3, 3, Q("15.235589 mm")))
sketch3.addConstraint(Sketcher.Constraint("DistanceY", 5, 3, 1, 3, Q("27.520091 mm")))
sketch3.addConstraint(Sketcher.Constraint("DistanceX", 5, 3, 13, 3, Q("9.227781 mm")))
sketch3.addConstraint(Sketcher.Constraint("DistanceX", 13, 3, 17, 3, Q("18.139751 mm")))
sketch3.addConstraint(Sketcher.Constraint("DistanceY", 21, 3, 1, 3, Q("3.14776 mm")))
sketch3.addConstraint(Sketcher.Constraint("DistanceX", 15, 3, 25, 3, Q("17.98742 mm")))
sketch3.addConstraint(Sketcher.Constraint("DistanceX", 11, 3, 10, 2, Q("1.741759 mm")))
sketch3.addConstraint(Sketcher.Constraint("DistanceX", 10, 2, 11, 2, Q("0.05629 mm")))
sketch3.addConstraint(Sketcher.Constraint("DistanceY", 10, 2, 12, 2, Q("0.85255 mm")))
sketch3.addConstraint(Sketcher.Constraint("DistanceX", 17, 3, 17, 2, Q("3.085142 mm")))
sketch3.addConstraint(Sketcher.Constraint("DistanceX", 19, 3, 19, 2, Q("10.010931 mm")))
sketch3.addConstraint(Sketcher.Constraint("DistanceY", 21, 2, 22, 2, Q("13.556712 mm")))
pad3 = body.newObject("PartDesign::Pad", "Pad002")
pad3.Profile = sketch3
pad3.Length = 4

sketch4 = body.newObject("Sketcher::SketchObject", "Sketch003")
sketch4.AttachmentSupport = (doc.getObject("XZ_Plane"), [""])
sketch4.MapMode = "FlatFace"
add_polygon(sketch4, [(27.568653, 112.186128), (22.156289, 112.186128), (22.156289, 91.93571), (28.98766, 65.755908), (36.476615, 54.317373), (40.651068, 40.30126), (37.294467, 24.947567), (49.043392, 10.924277), (52.806533, 14.952882), (41.369676, 26.918821), (44.278898, 37.89675), (58.653773, 37.89675), (59.23116, 41.91714), (56.839641, 54.774327), (42.218135, 54.723457), (35.012636, 65.899044), (30.525631, 85.906328), (27.568653, 94.657045)])
add_polygon(sketch4, [(43.707434, 42.336573), (43.707434, 49.766669), (55.087114, 49.766669), (55.087114, 42.336573)])
sketch4.addConstraint(Sketcher.Constraint("Horizontal", 0))
sketch4.addConstraint(Sketcher.Constraint("Vertical", 1))
sketch4.addConstraint(Sketcher.Constraint("Horizontal", 10))
sketch4.addConstraint(Sketcher.Constraint("Vertical", 17))
sketch4.addConstraint(Sketcher.Constraint("Vertical", 18))
sketch4.addConstraint(Sketcher.Constraint("Horizontal", 19))
sketch4.addConstraint(Sketcher.Constraint("Vertical", 20))
sketch4.addConstraint(Sketcher.Constraint("Horizontal", 21))
sketch4.addConstraint(Sketcher.Constraint("DistanceY", 14, 2, 16, 2, Q("28.758001 mm")))
sketch4.addConstraint(Sketcher.Constraint("DistanceX", 19, 1, 19, 2, Q("11.37968 mm")))
sketch4.addConstraint(Sketcher.Constraint("DistanceY", 2, 2, 1, 2, Q("26.179802 mm")))
sketch4.addConstraint(Sketcher.Constraint("DistanceX", 5, 2, 4, 2, Q("3.356601 mm")))
sketch4.addConstraint(Sketcher.Constraint("DistanceX", 14, 2, 13, 2, Q("7.205499 mm")))
sketch4.addConstraint(Sketcher.Constraint("DistanceY", 15, 2, 0, 2, Q("26.2798 mm")))
sketch4.addConstraint(Sketcher.Constraint("DistanceX", 13, 2, 18, 2, Q("1.489299 mm")))
sketch4.addConstraint(Sketcher.Constraint("Distance", 4, Q("14.624551 mm")))
sketch4.addConstraint(Sketcher.Constraint("Distance", 5, Q("15.716318 mm")))
sketch4.addConstraint(Sketcher.Constraint("Distance", 6, Q("18.294532 mm")))
sketch4.addConstraint(Sketcher.Constraint("Distance", 9, Q("11.35687 mm")))
sketch4.addConstraint(Sketcher.Constraint("Distance", 11, Q("4.061639 mm")))
sketch4.addConstraint(Sketcher.Constraint("Distance", 15, Q("20.504259 mm")))
sketch4.addConstraint(Sketcher.Constraint("DistanceX", 0, 2, 0, 1, Q("5.412364 mm")))
sketch4.addConstraint(Sketcher.Constraint("DistanceX", 10, 1, 10, 2, Q("14.374875 mm")))
sketch4.addConstraint(Sketcher.Constraint("DistanceY", 1, 2, 1, 1, Q("20.250418 mm")))
sketch4.addConstraint(Sketcher.Constraint("DistanceY", 17, 1, 17, 2, Q("17.529083 mm")))
sketch4.addConstraint(Sketcher.Constraint("DistanceY", 18, 1, 18, 2, Q("7.430097 mm")))
sketch4.addConstraint(Sketcher.Constraint("DistanceX", -1, 1, 0, 2, Q("22.156289 mm")))
sketch4.addConstraint(Sketcher.Constraint("DistanceY", -1, 1, 1, 2, Q("91.93571 mm")))
sketch4.addConstraint(Sketcher.Constraint("DistanceX", -1, 1, 2, 2, Q("28.98766 mm")))
sketch4.addConstraint(Sketcher.Constraint("DistanceX", -1, 1, 4, 2, Q("40.651068 mm")))
sketch4.addConstraint(Sketcher.Constraint("DistanceY", -1, 1, 4, 2, Q("40.30126 mm")))
sketch4.addConstraint(Sketcher.Constraint("DistanceX", -1, 1, 6, 2, Q("49.043392 mm")))
sketch4.addConstraint(Sketcher.Constraint("DistanceY", -1, 1, 8, 2, Q("26.918821 mm")))
sketch4.addConstraint(Sketcher.Constraint("DistanceY", -1, 1, 9, 2, Q("37.89675 mm")))
sketch4.addConstraint(Sketcher.Constraint("DistanceX", -1, 1, 11, 2, Q("59.23116 mm")))
sketch4.addConstraint(Sketcher.Constraint("DistanceY", -1, 1, 11, 2, Q("41.91714 mm")))
sketch4.addConstraint(Sketcher.Constraint("DistanceX", -1, 1, 12, 2, Q("56.839641 mm")))
sketch4.addConstraint(Sketcher.Constraint("DistanceX", -1, 1, 15, 2, Q("30.525631 mm")))
sketch4.addConstraint(Sketcher.Constraint("DistanceY", -1, 1, 18, 2, Q("49.766669 mm")))
sketch4.addConstraint(Sketcher.Constraint("DistanceX", 3, 2, 5, 2, Q("0.817852 mm")))
sketch4.addConstraint(Sketcher.Constraint("DistanceX", 6, 2, 7, 2, Q("3.763141 mm")))
sketch4.addConstraint(Sketcher.Constraint("DistanceY", 7, 2, 3, 2, Q("39.364491 mm")))
sketch4.addConstraint(Sketcher.Constraint("DistanceY", 13, 2, 12, 2, Q("0.05087 mm")))
sketch4.addConstraint(Sketcher.Constraint("DistanceY", 13, 2, 2, 2, Q("11.032451 mm")))
pad4 = body.newObject("PartDesign::Pad", "Pad003")
pad4.Profile = sketch4
pad4.Length = 10

sketch5 = body.newObject("Sketcher::SketchObject", "Sketch004")
sketch5.AttachmentSupport = (doc.getObject("YZ_Plane"), [""])
sketch5.MapMode = "FlatFace"
sketch5.AttachmentOffset = App.Placement(V(0, 0, 35), App.Rotation())
add_polygon(sketch5, [(-38.696293, 90.449928), (-43.607986, 90.449928), (-2.104192, 47.349838), (-2.349776, 53.489452)])
add_polygon(sketch5, [(-36.262971, 17.706057), (-30.339335, 17.706057), (-1.605939, 38.713028), (-2.09711, 43.133553)])
sketch5.addConstraint(Sketcher.Constraint("Horizontal", 0))
sketch5.addConstraint(Sketcher.Constraint("Horizontal", 4))
sketch5.addConstraint(Sketcher.Constraint("DistanceX", 3, 2, 1, 2, Q("36.592101 mm")))
sketch5.addConstraint(Sketcher.Constraint("DistanceY", 5, 2, 3, 2, Q("51.7369 mm")))
sketch5.addConstraint(Sketcher.Constraint("DistanceY", 6, 2, 2, 2, Q("10.355899 mm")))
sketch5.addConstraint(Sketcher.Constraint("Distance", 3, Q("51.83769 mm")))
sketch5.addConstraint(Sketcher.Constraint("Distance", 5, Q("35.593551 mm")))
sketch5.addConstraint(Sketcher.Constraint("Distance", 6, Q("4.447729 mm")))
sketch5.addConstraint(Sketcher.Constraint("DistanceX", 0, 2, 0, 1, Q("4.911693 mm")))
sketch5.addConstraint(Sketcher.Constraint("DistanceX", 4, 1, 4, 2, Q("5.923636 mm")))
sketch5.addConstraint(Sketcher.Constraint("DistanceY", -1, 1, 0, 2, Q("90.449928 mm")))
sketch5.addConstraint(Sketcher.Constraint("DistanceX", 1, 2, -1, 1, Q("2.104192 mm")))
sketch5.addConstraint(Sketcher.Constraint("DistanceX", 5, 2, -1, 1, Q("1.605939 mm")))
sketch5.addConstraint(Sketcher.Constraint("DistanceX", 6, 2, -1, 1, Q("2.09711 mm")))
sketch5.addConstraint(Sketcher.Constraint("DistanceX", 7, 2, -1, 1, Q("36.262971 mm")))
sketch5.addConstraint(Sketcher.Constraint("DistanceY", 1, 2, 0, 2, Q("43.10009 mm")))
pad5 = body.newObject("PartDesign::Pad", "Pad004")
pad5.Profile = sketch5
pad5.Length = 6

doc.recompute()
